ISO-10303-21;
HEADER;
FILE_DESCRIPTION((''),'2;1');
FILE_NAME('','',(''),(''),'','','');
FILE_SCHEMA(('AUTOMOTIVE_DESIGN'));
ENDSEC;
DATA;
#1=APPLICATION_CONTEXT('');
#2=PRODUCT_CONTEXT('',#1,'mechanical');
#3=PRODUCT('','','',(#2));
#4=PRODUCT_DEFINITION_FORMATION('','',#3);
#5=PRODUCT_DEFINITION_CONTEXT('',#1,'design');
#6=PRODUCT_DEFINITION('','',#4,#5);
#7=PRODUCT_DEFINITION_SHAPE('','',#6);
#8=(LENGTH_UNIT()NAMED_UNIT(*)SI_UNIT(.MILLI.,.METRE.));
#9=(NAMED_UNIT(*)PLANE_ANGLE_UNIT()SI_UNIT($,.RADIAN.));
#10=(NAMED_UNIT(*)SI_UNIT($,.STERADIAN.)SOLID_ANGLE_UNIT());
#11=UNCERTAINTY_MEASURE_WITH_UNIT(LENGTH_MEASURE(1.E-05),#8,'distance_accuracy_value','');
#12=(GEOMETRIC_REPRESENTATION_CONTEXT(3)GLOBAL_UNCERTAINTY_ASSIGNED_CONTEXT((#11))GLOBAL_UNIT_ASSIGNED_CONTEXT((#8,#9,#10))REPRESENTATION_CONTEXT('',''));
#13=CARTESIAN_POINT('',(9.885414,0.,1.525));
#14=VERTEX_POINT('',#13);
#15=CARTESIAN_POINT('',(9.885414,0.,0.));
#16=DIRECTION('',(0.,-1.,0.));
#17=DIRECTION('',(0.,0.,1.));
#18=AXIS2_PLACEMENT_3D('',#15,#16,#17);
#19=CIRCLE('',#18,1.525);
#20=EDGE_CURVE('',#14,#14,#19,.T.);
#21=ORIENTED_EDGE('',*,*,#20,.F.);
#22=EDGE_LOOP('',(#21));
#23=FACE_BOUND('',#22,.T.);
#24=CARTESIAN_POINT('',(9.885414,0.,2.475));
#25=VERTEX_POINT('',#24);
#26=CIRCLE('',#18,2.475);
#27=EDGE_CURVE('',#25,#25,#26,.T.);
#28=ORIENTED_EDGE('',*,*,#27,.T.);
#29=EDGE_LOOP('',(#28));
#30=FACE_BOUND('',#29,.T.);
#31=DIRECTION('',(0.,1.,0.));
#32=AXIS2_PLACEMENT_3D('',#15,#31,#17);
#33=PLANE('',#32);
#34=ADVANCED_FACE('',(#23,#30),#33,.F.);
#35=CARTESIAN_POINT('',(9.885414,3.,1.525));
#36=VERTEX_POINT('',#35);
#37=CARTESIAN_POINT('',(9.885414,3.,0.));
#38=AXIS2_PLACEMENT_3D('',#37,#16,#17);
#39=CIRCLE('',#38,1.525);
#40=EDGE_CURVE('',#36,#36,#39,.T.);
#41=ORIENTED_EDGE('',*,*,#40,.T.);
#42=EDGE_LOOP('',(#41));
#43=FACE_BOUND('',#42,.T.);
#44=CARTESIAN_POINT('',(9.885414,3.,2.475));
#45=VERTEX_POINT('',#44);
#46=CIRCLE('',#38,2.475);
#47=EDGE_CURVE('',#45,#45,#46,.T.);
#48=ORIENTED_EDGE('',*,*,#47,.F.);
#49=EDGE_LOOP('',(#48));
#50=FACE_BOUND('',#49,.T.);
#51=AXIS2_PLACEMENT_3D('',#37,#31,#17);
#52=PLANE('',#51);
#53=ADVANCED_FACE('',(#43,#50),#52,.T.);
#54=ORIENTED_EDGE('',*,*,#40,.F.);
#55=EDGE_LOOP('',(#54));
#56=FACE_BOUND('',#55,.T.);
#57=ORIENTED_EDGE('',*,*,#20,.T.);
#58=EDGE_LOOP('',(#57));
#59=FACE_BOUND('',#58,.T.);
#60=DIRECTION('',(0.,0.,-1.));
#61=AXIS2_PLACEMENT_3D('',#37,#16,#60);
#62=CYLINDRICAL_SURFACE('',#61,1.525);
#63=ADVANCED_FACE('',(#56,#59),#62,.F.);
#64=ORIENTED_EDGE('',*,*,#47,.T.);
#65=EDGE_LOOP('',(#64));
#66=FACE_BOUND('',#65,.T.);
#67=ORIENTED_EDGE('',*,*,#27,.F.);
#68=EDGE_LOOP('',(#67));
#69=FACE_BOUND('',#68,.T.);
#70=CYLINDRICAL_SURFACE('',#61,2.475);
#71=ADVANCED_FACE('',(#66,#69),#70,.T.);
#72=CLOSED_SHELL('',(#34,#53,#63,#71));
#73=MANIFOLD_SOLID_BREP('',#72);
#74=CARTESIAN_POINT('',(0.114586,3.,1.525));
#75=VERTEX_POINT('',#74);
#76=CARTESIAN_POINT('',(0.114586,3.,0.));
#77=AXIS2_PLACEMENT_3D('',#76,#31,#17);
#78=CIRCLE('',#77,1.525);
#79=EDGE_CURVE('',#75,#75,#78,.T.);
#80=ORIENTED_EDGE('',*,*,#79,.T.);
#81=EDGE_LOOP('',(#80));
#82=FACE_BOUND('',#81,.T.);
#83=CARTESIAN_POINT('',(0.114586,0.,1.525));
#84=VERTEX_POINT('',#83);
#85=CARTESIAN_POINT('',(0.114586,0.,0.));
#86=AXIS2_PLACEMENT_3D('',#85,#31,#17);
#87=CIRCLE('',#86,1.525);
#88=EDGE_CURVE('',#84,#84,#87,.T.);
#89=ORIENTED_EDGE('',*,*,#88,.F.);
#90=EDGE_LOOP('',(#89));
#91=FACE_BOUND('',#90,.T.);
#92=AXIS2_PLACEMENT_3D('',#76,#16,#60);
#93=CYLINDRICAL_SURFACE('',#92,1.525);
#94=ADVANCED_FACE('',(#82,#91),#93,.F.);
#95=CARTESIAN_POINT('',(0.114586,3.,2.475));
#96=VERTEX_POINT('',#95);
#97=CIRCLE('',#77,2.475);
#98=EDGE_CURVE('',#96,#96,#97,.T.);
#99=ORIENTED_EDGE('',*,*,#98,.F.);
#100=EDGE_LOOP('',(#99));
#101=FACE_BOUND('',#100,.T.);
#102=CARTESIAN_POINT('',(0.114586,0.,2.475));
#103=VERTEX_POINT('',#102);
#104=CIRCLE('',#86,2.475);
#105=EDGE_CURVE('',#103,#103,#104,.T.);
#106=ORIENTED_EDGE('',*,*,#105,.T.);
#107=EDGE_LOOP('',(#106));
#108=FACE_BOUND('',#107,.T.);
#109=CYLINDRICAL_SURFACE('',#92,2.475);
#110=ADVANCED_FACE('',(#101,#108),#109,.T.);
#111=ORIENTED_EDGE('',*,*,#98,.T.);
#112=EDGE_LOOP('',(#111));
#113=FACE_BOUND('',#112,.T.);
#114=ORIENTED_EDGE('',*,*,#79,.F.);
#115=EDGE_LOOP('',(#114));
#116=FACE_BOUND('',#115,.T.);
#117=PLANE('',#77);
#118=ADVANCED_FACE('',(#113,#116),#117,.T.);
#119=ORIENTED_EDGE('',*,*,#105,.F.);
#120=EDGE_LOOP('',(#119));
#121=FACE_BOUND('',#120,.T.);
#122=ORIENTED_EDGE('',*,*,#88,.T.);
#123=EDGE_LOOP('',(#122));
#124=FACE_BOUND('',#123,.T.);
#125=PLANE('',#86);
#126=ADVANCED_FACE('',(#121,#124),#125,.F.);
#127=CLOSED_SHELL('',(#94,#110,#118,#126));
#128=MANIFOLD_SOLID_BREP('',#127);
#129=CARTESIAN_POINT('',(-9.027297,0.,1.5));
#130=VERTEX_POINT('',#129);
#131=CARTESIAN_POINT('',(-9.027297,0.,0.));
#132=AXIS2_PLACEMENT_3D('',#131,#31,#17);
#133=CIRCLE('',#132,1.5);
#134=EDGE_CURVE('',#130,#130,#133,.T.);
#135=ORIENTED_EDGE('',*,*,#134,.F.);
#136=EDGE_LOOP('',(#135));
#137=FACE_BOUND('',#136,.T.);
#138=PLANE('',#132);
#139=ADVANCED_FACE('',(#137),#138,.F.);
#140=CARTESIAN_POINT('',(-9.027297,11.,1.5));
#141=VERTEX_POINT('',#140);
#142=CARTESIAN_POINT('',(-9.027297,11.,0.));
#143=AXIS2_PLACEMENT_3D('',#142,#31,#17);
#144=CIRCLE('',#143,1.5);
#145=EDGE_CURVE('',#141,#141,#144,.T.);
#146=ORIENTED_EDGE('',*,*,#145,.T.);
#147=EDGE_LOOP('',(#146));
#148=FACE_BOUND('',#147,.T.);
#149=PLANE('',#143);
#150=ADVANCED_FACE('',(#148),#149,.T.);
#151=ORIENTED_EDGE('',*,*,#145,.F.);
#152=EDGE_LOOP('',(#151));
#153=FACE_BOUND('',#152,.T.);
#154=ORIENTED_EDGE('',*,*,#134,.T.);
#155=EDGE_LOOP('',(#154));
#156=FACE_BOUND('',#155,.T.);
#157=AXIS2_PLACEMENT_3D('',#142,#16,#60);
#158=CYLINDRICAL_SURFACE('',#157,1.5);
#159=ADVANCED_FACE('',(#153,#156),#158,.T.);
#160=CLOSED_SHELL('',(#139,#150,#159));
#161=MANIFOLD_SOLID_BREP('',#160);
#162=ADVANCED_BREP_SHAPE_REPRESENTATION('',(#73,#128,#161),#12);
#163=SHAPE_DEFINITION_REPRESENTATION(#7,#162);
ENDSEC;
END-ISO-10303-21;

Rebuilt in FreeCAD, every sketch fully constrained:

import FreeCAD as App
import Part
import Sketcher

V = App.Vector

doc = App.newDocument("Part")
body = doc.addObject("PartDesign::Body", "Body")

sketch1 = doc.addObject("Sketcher::SketchObject", "Sketch")
body.addObject(sketch1)
sketch1.AttachmentSupport = (doc.XZ_Plane, [""])
sketch1.MapMode = "FlatFace"
sketch1.addGeometry([
    Part.Circle(V(0.1, 0, 0), V(0, 0, 1), 2.5),
    Part.Circle(V(0.1, 0, 0), V(0, 0, 1), 1.5),
], False)
sketch1.addConstraint([
    Sketcher.Constraint("Coincident", 1, 3, 0, 3),
    Sketcher.Constraint("PointOnObject", 0, 3, -1),
    Sketcher.Constraint("Diameter", 0, 4.95),
    Sketcher.Constraint("Diameter", 1, 3.05),
    Sketcher.Constraint("DistanceX", -1, 1, 0, 3, 0.114586),
])
pad1 = doc.addObject("PartDesign::Pad", "Pad")
body.addObject(pad1)
pad1.Profile = sketch1
pad1.Length = 3
pad1.Reversed = True
body2 = doc.addObject("PartDesign::Body", "Body001")

sketch2 = doc.addObject("Sketcher::SketchObject", "Sketch001")
body2.addObject(sketch2)
sketch2.AttachmentSupport = (doc.getObject("XZ_Plane001"), [""])
sketch2.MapMode = "FlatFace"
sketch2.addGeometry(Part.Circle(V(-9, 0, 0), V(0, 0, 1), 1.5), False)
sketch2.addConstraint([
    Sketcher.Constraint("PointOnObject", 0, 3, -1),
    Sketcher.Constraint("Diameter", 0, 3.0),
    Sketcher.Constraint("DistanceX", 0, 3, -1, 1, 9.027297),
])
pad2 = doc.addObject("PartDesign::Pad", "Pad001")
body2.addObject(pad2)
pad2.Profile = sketch2
pad2.Length = 11
pad2.Reversed = True
body3 = doc.addObject("PartDesign::Body", "Body002")
doc.recompute()

mirroring = doc.addObject("Part::Mirroring", "Mirroring")
mirroring.Source = body
mirroring.Base = V(5, 0, 0)
mirroring.Normal = V(1, 0, 0)
body3.BaseFeature = mirroring
doc.recompute()
mirroring.Visibility = False

doc.recompute()
